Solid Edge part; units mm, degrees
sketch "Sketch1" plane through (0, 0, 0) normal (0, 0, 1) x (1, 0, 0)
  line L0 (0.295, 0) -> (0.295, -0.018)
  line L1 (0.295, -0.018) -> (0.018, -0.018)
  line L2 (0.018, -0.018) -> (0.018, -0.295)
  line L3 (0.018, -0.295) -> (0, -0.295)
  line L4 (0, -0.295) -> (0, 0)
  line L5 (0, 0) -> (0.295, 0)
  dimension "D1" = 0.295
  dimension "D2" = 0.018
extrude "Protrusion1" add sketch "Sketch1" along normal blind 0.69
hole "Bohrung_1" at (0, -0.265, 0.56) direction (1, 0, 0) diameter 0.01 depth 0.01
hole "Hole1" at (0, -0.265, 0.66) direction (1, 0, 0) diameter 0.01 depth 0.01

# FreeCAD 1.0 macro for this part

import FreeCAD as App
import Part
import Sketcher
Q = App.Units.Quantity


def add_polygon(sketch, points):
    """Adds a closed chain of lines whose ends are joined by coincident constraints."""
    first, n = sketch.GeometryCount, len(points)
    for a, b in zip(points, points[1:] + points[:1]):
        sketch.addGeometry(Part.LineSegment(App.Vector(*a, 0), App.Vector(*b, 0)), False)
    for i in range(n):
        sketch.addConstraint(Sketcher.Constraint("Coincident", first + i, 2, first + (i + 1) % n, 1))

doc = App.newDocument("Part")
body = doc.addObject("PartDesign::Body", "Body")

sketch1 = doc.addObject("Sketcher::SketchObject", "Sketch")
body.addObject(sketch1)
sketch1.AttachmentSupport = (doc.XY_Plane, [""])
sketch1.MapMode = "FlatFace"
add_polygon(sketch1, [(0.295, -0.018), (0.295, 0), (0, 0), (0, -0.295), (0.018, -0.295), (0.018, -0.018)])
sketch1.addConstraint(Sketcher.Constraint("Vertical", 0))
sketch1.addConstraint(Sketcher.Constraint("Horizontal", 1))
sketch1.addConstraint(Sketcher.Constraint("Vertical", 2))
sketch1.addConstraint(Sketcher.Constraint("Horizontal", 3))
sketch1.addConstraint(Sketcher.Constraint("Vertical", 4))
sketch1.addConstraint(Sketcher.Constraint("Horizontal", 5))
sketch1.addConstraint(Sketcher.Constraint("Coincident", 1, 2, -1, 1))
sketch1.addConstraint(Sketcher.Constraint("Equal", 3, 0))
sketch1.addConstraint(Sketcher.Constraint("Equal", 1, 2))
sketch1.addConstraint(Sketcher.Constraint("DistanceX", 1, 2, 1, 1, Q("0.295 mm")))
sketch1.addConstraint(Sketcher.Constraint("DistanceX", 3, 1, 3, 2, Q("0.018 mm")))
pad1 = doc.addObject("PartDesign::Pad", "Pad")
body.addObject(pad1)
pad1.Profile = sketch1
pad1.Length = 0.69

sketch2 = doc.addObject("Sketcher::SketchObject", "Sketch001")
body.addObject(sketch2)
sketch2.AttachmentSupport = (doc.YZ_Plane, [""])
sketch2.MapMode = "FlatFace"
sketch2.addGeometry(Part.Circle(App.Vector(-0.265, 0.56, 0), App.Vector(0, 0, 1), 0.005), False)
sketch2.addConstraint(Sketcher.Constraint("Diameter", 0, Q("0.01 mm")))
sketch2.addConstraint(Sketcher.Constraint("DistanceY", -1, 1, 0, 3, Q("0.56 mm")))
sketch2.addConstraint(Sketcher.Constraint("DistanceX", 0, 3, -1, 1, Q("0.265 mm")))
doc.recompute()
hole = doc.addObject("PartDesign::Hole", "Hole")
body.addObject(hole)
hole.Profile = sketch2
hole.ThreadType = "None"
hole.Diameter = 0.01
hole.DepthType = "Dimension"
hole.Depth = 0.01
hole.DrillPoint = "Flat"
hole.Reversed = True

sketch3 = doc.addObject("Sketcher::SketchObject", "Sketch002")
body.addObject(sketch3)
sketch3.AttachmentSupport = (doc.YZ_Plane, [""])
sketch3.MapMode = "FlatFace"
sketch3.addGeometry(Part.Circle(App.Vector(-0.265, 0.66, 0), App.Vector(0, 0, 1), 0.005), False)
sketch3.addConstraint(Sketcher.Constraint("Diameter", 0, Q("0.01 mm")))
sketch3.addConstraint(Sketcher.Constraint("DistanceY", -1, 1, 0, 3, Q("0.66 mm")))
sketch3.addConstraint(Sketcher.Constraint("DistanceX", 0, 3, -1, 1, Q("0.265 mm")))
doc.recompute()
hole2 = doc.addObject("PartDesign::Hole", "Hole001")
body.addObject(hole2)
hole2.Profile = sketch3
hole2.ThreadType = "None"
hole2.Diameter = 0.01
hole2.DepthType = "Dimension"
hole2.Depth = 0.01
hole2.DrillPoint = "Flat"
hole2.Reversed = True

doc.recompute()
